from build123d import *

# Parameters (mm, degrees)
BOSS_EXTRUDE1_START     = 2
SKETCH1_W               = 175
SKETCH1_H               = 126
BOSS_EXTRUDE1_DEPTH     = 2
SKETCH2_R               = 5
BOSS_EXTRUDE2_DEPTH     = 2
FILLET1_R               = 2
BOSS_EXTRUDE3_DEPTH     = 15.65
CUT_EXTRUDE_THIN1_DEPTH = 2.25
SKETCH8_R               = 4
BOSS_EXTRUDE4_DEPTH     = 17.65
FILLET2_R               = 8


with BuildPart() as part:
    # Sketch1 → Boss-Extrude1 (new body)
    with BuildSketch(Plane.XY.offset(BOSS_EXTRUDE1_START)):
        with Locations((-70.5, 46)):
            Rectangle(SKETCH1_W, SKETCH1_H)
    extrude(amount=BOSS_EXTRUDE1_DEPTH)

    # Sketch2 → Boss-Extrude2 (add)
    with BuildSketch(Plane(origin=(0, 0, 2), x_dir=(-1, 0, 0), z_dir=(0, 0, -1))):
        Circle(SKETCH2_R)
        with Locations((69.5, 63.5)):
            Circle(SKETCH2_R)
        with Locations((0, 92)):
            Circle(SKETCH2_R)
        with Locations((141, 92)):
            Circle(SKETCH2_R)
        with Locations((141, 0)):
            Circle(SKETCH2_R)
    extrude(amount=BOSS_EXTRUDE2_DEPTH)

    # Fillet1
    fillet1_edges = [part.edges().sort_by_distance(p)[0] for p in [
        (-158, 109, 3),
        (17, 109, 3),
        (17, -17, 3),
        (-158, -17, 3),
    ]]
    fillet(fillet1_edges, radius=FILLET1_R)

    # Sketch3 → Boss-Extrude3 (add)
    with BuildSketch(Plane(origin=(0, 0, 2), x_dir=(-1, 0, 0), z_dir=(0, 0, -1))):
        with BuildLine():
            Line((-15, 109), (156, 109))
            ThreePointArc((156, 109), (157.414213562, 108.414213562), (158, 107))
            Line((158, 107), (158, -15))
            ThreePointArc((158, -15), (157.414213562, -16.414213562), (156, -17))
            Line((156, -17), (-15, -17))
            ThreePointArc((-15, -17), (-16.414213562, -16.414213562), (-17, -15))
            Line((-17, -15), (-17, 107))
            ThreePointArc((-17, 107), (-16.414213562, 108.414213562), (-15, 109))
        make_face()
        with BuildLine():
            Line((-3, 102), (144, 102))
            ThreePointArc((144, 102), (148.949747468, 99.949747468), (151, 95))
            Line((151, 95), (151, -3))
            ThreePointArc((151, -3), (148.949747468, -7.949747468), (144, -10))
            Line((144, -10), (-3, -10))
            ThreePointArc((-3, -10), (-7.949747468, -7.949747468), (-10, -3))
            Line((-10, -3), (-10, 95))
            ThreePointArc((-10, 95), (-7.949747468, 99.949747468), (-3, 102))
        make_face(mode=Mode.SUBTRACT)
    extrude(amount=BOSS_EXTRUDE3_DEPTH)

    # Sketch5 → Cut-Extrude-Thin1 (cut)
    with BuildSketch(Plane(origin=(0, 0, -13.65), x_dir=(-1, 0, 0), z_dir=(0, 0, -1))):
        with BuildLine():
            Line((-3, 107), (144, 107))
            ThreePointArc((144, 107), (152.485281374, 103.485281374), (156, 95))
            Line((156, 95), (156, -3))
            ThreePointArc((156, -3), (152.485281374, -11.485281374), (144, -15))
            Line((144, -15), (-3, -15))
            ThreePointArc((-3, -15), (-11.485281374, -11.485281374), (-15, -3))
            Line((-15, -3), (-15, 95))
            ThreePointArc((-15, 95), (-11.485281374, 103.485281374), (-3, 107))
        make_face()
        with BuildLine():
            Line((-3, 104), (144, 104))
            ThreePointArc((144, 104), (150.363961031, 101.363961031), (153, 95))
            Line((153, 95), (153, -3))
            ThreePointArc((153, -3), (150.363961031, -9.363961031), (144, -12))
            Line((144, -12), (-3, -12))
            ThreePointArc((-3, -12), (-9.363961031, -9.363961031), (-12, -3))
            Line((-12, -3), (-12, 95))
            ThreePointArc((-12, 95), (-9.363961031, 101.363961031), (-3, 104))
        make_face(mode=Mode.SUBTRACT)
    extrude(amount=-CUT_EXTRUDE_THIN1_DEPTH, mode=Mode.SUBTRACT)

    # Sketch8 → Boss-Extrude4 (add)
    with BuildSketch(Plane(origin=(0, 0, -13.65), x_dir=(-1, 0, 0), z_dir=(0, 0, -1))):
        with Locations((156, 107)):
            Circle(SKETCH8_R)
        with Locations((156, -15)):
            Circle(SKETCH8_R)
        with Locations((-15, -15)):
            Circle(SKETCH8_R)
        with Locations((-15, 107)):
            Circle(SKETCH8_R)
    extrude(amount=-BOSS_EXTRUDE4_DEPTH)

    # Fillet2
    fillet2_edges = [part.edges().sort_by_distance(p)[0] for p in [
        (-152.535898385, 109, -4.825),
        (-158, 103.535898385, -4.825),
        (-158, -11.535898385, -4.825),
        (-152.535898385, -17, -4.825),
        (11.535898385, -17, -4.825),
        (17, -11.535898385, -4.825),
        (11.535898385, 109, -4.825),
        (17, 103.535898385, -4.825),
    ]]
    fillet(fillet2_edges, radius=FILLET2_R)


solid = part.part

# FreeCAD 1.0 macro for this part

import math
import FreeCAD as App
import Part
import Sketcher

V = App.Vector


def edges_at(feature, points):
    """Names of the edges that pass closest to the given points."""
    edges = feature.Shape.Edges
    near = lambda p: min(range(len(edges)), key=lambda i: edges[i].distToShape(Part.Vertex(*p))[0])
    return sorted({f"Edge{near(p) + 1}" for p in points})


def add_polygon(sketch, points):
    """Adds a closed chain of lines whose ends are joined by coincident constraints."""
    first, n = sketch.GeometryCount, len(points)
    for a, b in zip(points, points[1:] + points[:1]):
        sketch.addGeometry(Part.LineSegment(App.Vector(*a, 0), App.Vector(*b, 0)), False)
    for i in range(n):
        sketch.addConstraint(Sketcher.Constraint("Coincident", first + i, 2, first + (i + 1) % n, 1))

doc = App.newDocument("Part")
body = doc.addObject("PartDesign::Body", "Body")

sketch1 = doc.addObject("Sketcher::SketchObject", "Sketch")
body.addObject(sketch1)
sketch1.AttachmentSupport = (doc.XY_Plane, [""])
sketch1.MapMode = "FlatFace"
sketch1.AttachmentOffset = App.Placement(V(0, 0, 2), App.Rotation())
add_polygon(sketch1, [(-158, 109), (-158, -17), (17, -17), (17, 109)])
sketch1.addConstraint([
    Sketcher.Constraint("Vertical", 0),
    Sketcher.Constraint("Horizontal", 1),
    Sketcher.Constraint("Vertical", 2),
    Sketcher.Constraint("Horizontal", 3),
    Sketcher.Constraint("DistanceX", 1, 1, 1, 2, 175.0),
    Sketcher.Constraint("DistanceY", 0, 2, 0, 1, 126.0),
    Sketcher.Constraint("DistanceX", 0, 2, -1, 1, 158.0),
    Sketcher.Constraint("DistanceY", 0, 2, -1, 1, 17.0),
])
pad1 = doc.addObject("PartDesign::Pad", "Pad")
body.addObject(pad1)
pad1.Profile = sketch1
pad1.Length = 2

sketch2 = doc.addObject("Sketcher::SketchObject", "Sketch001")
body.addObject(sketch2)
sketch2.AttachmentSupport = (doc.XY_Plane, [""])
sketch2.MapMode = "FlatFace"
sketch2.AttachmentOffset = App.Placement(V(0, 0, 2), App.Rotation())
sketch2.addGeometry([
    Part.Circle(V(0, 0, 0), V(0, 0, 1), 5),
    Part.Circle(V(-70, 64, 0), V(0, 0, 1), 5),
    Part.Circle(V(0, 92, 0), V(0, 0, 1), 5),
    Part.Circle(V(-141, 92, 0), V(0, 0, 1), 5),
    Part.Circle(V(-141, 0, 0), V(0, 0, 1), 5),
], False)
sketch2.addConstraint([
    Sketcher.Constraint("Coincident", 0, 3, -1, 1),
    Sketcher.Constraint("Equal", 0, 1),
    Sketcher.Constraint("Equal", 1, 2),
    Sketcher.Constraint("Equal", 2, 3),
    Sketcher.Constraint("Equal", 3, 4),
    Sketcher.Constraint("PointOnObject", 2, 3, -2),
    Sketcher.Constraint("PointOnObject", 4, 3, -1),
    Sketcher.Constraint("Horizontal", 2, 3, 3, 3),
    Sketcher.Constraint("Vertical", 3, 3, 4, 3),
    Sketcher.Constraint("Diameter", 0, 10.0),
    Sketcher.Constraint("DistanceY", -1, 1, 2, 3, 92.0),
    Sketcher.Constraint("DistanceX", 3, 3, -1, 1, 141.0),
    Sketcher.Constraint("DistanceX", 1, 3, -1, 1, 69.5),
    Sketcher.Constraint("DistanceY", -1, 1, 1, 3, 63.5),
])
pad2 = doc.addObject("PartDesign::Pad", "Pad001")
body.addObject(pad2)
pad2.Profile = sketch2
pad2.Length = 2
pad2.Reversed = True
doc.recompute()

fillet = doc.addObject("PartDesign::Fillet", "Fillet")
body.addObject(fillet)
fillet.Base = (pad2, edges_at(pad2, [
    (-158, 109, 3),
    (17, 109, 3),
    (17, -17, 3),
    (-158, -17, 3),
]))
fillet.Radius = 2

sketch3 = doc.addObject("Sketcher::SketchObject", "Sketch002")
body.addObject(sketch3)
sketch3.AttachmentSupport = (doc.XY_Plane, [""])
sketch3.MapMode = "FlatFace"
sketch3.AttachmentOffset = App.Placement(V(0, 0, 2), App.Rotation())
sketch3.addGeometry([
    Part.LineSegment(V(-156, 109, 0), V(15, 109, 0)),
    Part.ArcOfCircle(Part.Circle(V(15, 107, 0), V(0, 0, 1), 2), math.radians(0), math.radians(90)),
    Part.LineSegment(V(17, 107, 0), V(17, -15, 0)),
    Part.ArcOfCircle(Part.Circle(V(15, -15, 0), V(0, 0, 1), 2), math.radians(-90), math.radians(0)),
    Part.LineSegment(V(15, -17, 0), V(-156, -17, 0)),
    Part.ArcOfCircle(Part.Circle(V(-156, -15, 0), V(0, 0, 1), 2), math.radians(-180), math.radians(-90)),
    Part.LineSegment(V(-158, -15, 0), V(-158, 107, 0)),
    Part.ArcOfCircle(Part.Circle(V(-156, 107, 0), V(0, 0, 1), 2), math.radians(90), math.radians(180)),
    Part.LineSegment(V(3, 102, 0), V(-144, 102, 0)),
    Part.ArcOfCircle(Part.Circle(V(-144, 95, 0), V(0, 0, 1), 7), math.radians(90), math.radians(180)),
    Part.LineSegment(V(-151, 95, 0), V(-151, -3, 0)),
    Part.ArcOfCircle(Part.Circle(V(-144, -3, 0), V(0, 0, 1), 7), math.radians(-180), math.radians(-90)),
    Part.LineSegment(V(-144, -10, 0), V(3, -10, 0)),
    Part.ArcOfCircle(Part.Circle(V(3, -3, 0), V(0, 0, 1), 7), math.radians(-90), math.radians(0)),
    Part.LineSegment(V(10, -3, 0), V(10, 95, 0)),
    Part.ArcOfCircle(Part.Circle(V(3, 95, 0), V(0, 0, 1), 7), math.radians(0), math.radians(90)),
], False)
sketch3.addConstraint([
    Sketcher.Constraint("Tangent", 0, 2, 1, 2),
    Sketcher.Constraint("Tangent", 1, 1, 2, 1),
    Sketcher.Constraint("Tangent", 2, 2, 3, 2),
    Sketcher.Constraint("Tangent", 3, 1, 4, 1),
    Sketcher.Constraint("Tangent", 4, 2, 5, 2),
    Sketcher.Constraint("Tangent", 5, 1, 6, 1),
    Sketcher.Constraint("Tangent", 6, 2, 7, 2),
    Sketcher.Constraint("Tangent", 7, 1, 0, 1),
    Sketcher.Constraint("Tangent", 8, 2, 9, 1),
    Sketcher.Constraint("Tangent", 9, 2, 10, 1),
    Sketcher.Constraint("Tangent", 10, 2, 11, 1),
    Sketcher.Constraint("Tangent", 11, 2, 12, 1),
    Sketcher.Constraint("Tangent", 12, 2, 13, 1),
    Sketcher.Constraint("Tangent", 13, 2, 14, 1),
    Sketcher.Constraint("Tangent", 14, 2, 15, 1),
    Sketcher.Constraint("Tangent", 15, 2, 8, 1),
    Sketcher.Constraint("Horizontal", 0),
    Sketcher.Constraint("Vertical", 2),
    Sketcher.Constraint("Horizontal", 4),
    Sketcher.Constraint("Vertical", 6),
    Sketcher.Constraint("Horizontal", 8),
    Sketcher.Constraint("Vertical", 10),
    Sketcher.Constraint("Horizontal", 12),
    Sketcher.Constraint("Vertical", 14),
    Sketcher.Constraint("Equal", 1, 3),
    Sketcher.Constraint("Equal", 3, 5),
    Sketcher.Constraint("Equal", 5, 7),
    Sketcher.Constraint("Equal", 9, 11),
    Sketcher.Constraint("Equal", 11, 13),
    Sketcher.Constraint("Equal", 13, 15),
    Sketcher.Constraint("Radius", 1, 2.0),
    Sketcher.Constraint("Radius", 9, 7.0),
    Sketcher.Constraint("DistanceX", 0, 1, 0, 2, 171.0),
    Sketcher.Constraint("DistanceX", 8, 2, 8, 1, 147.0),
    Sketcher.Constraint("DistanceY", 2, 2, 2, 1, 122.0),
    Sketcher.Constraint("DistanceY", 10, 2, 10, 1, 98.0),
    Sketcher.Constraint("DistanceX", -1, 1, 1, 3, 15.0),
    Sketcher.Constraint("DistanceY", -1, 1, 1, 3, 107.0),
    Sketcher.Constraint("DistanceX", 9, 3, -1, 1, 144.0),
    Sketcher.Constraint("DistanceY", -1, 1, 9, 3, 95.0),
])
pad3 = doc.addObject("PartDesign::Pad", "Pad002")
body.addObject(pad3)
pad3.Profile = sketch3
pad3.Length = 15.65
pad3.Reversed = True

sketch4 = doc.addObject("Sketcher::SketchObject", "Sketch003")
body.addObject(sketch4)
sketch4.AttachmentSupport = (doc.XY_Plane, [""])
sketch4.MapMode = "FlatFace"
sketch4.AttachmentOffset = App.Placement(V(0, 0, -13.65), App.Rotation())
sketch4.addGeometry([
    Part.LineSegment(V(-144, 107, 0), V(3, 107, 0)),
    Part.ArcOfCircle(Part.Circle(V(3, 95, 0), V(0, 0, 1), 12), math.radians(0), math.radians(90)),
    Part.LineSegment(V(15, 95, 0), V(15, -3, 0)),
    Part.ArcOfCircle(Part.Circle(V(3, -3, 0), V(0, 0, 1), 12), math.radians(-90), math.radians(0)),
    Part.LineSegment(V(3, -15, 0), V(-144, -15, 0)),
    Part.ArcOfCircle(Part.Circle(V(-144, -3, 0), V(0, 0, 1), 12), math.radians(-180), math.radians(-90)),
    Part.LineSegment(V(-156, -3, 0), V(-156, 95, 0)),
    Part.ArcOfCircle(Part.Circle(V(-144, 95, 0), V(0, 0, 1), 12), math.radians(90), math.radians(180)),
    Part.LineSegment(V(3, 104, 0), V(-144, 104, 0)),
    Part.ArcOfCircle(Part.Circle(V(-144, 95, 0), V(0, 0, 1), 9), math.radians(90), math.radians(180)),
    Part.LineSegment(V(-153, 95, 0), V(-153, -3, 0)),
    Part.ArcOfCircle(Part.Circle(V(-144, -3, 0), V(0, 0, 1), 9), math.radians(180), math.radians(270)),
    Part.LineSegment(V(-144, -12, 0), V(3, -12, 0)),
    Part.ArcOfCircle(Part.Circle(V(3, -3, 0), V(0, 0, 1), 9), math.radians(-90), math.radians(0)),
    Part.LineSegment(V(12, -3, 0), V(12, 95, 0)),
    Part.ArcOfCircle(Part.Circle(V(3, 95, 0), V(0, 0, 1), 9), math.radians(0), math.radians(90)),
], False)
sketch4.addConstraint([
    Sketcher.Constraint("Tangent", 0, 2, 1, 2),
    Sketcher.Constraint("Tangent", 1, 1, 2, 1),
    Sketcher.Constraint("Tangent", 2, 2, 3, 2),
    Sketcher.Constraint("Tangent", 3, 1, 4, 1),
    Sketcher.Constraint("Tangent", 4, 2, 5, 2),
    Sketcher.Constraint("Tangent", 5, 1, 6, 1),
    Sketcher.Constraint("Tangent", 6, 2, 7, 2),
    Sketcher.Constraint("Tangent", 7, 1, 0, 1),
    Sketcher.Constraint("Tangent", 8, 2, 9, 1),
    Sketcher.Constraint("Tangent", 9, 2, 10, 1),
    Sketcher.Constraint("Tangent", 10, 2, 11, 1),
    Sketcher.Constraint("Tangent", 11, 2, 12, 1),
    Sketcher.Constraint("Tangent", 12, 2, 13, 1),
    Sketcher.Constraint("Tangent", 13, 2, 14, 1),
    Sketcher.Constraint("Tangent", 14, 2, 15, 1),
    Sketcher.Constraint("Tangent", 15, 2, 8, 1),
    Sketcher.Constraint("Horizontal", 0),
    Sketcher.Constraint("Vertical", 2),
    Sketcher.Constraint("Horizontal", 4),
    Sketcher.Constraint("Vertical", 6),
    Sketcher.Constraint("Horizontal", 8),
    Sketcher.Constraint("Vertical", 10),
    Sketcher.Constraint("Horizontal", 12),
    Sketcher.Constraint("Vertical", 14),
    Sketcher.Constraint("Coincident", 9, 3, 7, 3),
    Sketcher.Constraint("Coincident", 11, 3, 5, 3),
    Sketcher.Constraint("Coincident", 13, 3, 3, 3),
    Sketcher.Constraint("Equal", 1, 3),
    Sketcher.Constraint("Equal", 3, 5),
    Sketcher.Constraint("Equal", 5, 7),
    Sketcher.Constraint("Equal", 13, 15),
    Sketcher.Constraint("Radius", 1, 12.0),
    Sketcher.Constraint("Radius", 9, 9.0),
    Sketcher.Constraint("DistanceX", 0, 1, 0, 2, 147.0),
    Sketcher.Constraint("DistanceY", 2, 2, 2, 1, 98.0),
    Sketcher.Constraint("DistanceX", -1, 1, 1, 3, 3.0),
    Sketcher.Constraint("DistanceY", -1, 1, 1, 3, 95.0),
])
pocket1 = doc.addObject("PartDesign::Pocket", "Pocket")
body.addObject(pocket1)
pocket1.Profile = sketch4
pocket1.Length = 2.25
pocket1.Reversed = True

sketch5 = doc.addObject("Sketcher::SketchObject", "Sketch004")
body.addObject(sketch5)
sketch5.AttachmentSupport = (doc.XY_Plane, [""])
sketch5.MapMode = "FlatFace"
sketch5.AttachmentOffset = App.Placement(V(0, 0, -13.65), App.Rotation())
sketch5.addGeometry([
    Part.Circle(V(-156, 107, 0), V(0, 0, 1), 4),
    Part.Circle(V(-156, -15, 0), V(0, 0, 1), 4),
    Part.Circle(V(15, -15, 0), V(0, 0, 1), 4),
    Part.Circle(V(15, 107, 0), V(0, 0, 1), 4),
], False)
sketch5.addConstraint([
    Sketcher.Constraint("Equal", 0, 1),
    Sketcher.Constraint("Equal", 1, 2),
    Sketcher.Constraint("Equal", 2, 3),
    Sketcher.Constraint("Horizontal", 1, 3, 2, 3),
    Sketcher.Constraint("Horizontal", 0, 3, 3, 3),
    Sketcher.Constraint("Vertical", 0, 3, 1, 3),
    Sketcher.Constraint("Vertical", 2, 3, 3, 3),
    Sketcher.Constraint("Diameter", 0, 8.0),
    Sketcher.Constraint("DistanceX", 0, 3, -1, 1, 156.0),
    Sketcher.Constraint("DistanceY", -1, 1, 0, 3, 107.0),
    Sketcher.Constraint("DistanceY", 1, 3, -1, 1, 15.0),
    Sketcher.Constraint("DistanceX", -1, 1, 2, 3, 15.0),
])
pad4 = doc.addObject("PartDesign::Pad", "Pad003")
body.addObject(pad4)
pad4.Profile = sketch5
pad4.Length = 17.65
doc.recompute()

fillet2 = doc.addObject("PartDesign::Fillet", "Fillet001")
body.addObject(fillet2)
fillet2.Base = (pad4, edges_at(pad4, [
    (-152.536, 109, -4.825),
    (-158, 103.536, -4.825),
    (-158, -11.536, -4.825),
    (-152.536, -17, -4.825),
    (11.536, -17, -4.825),
    (17, -11.536, -4.825),
    (11.536, 109, -4.825),
    (17, 103.536, -4.825),
]))
fillet2.Radius = 8

doc.recompute()
